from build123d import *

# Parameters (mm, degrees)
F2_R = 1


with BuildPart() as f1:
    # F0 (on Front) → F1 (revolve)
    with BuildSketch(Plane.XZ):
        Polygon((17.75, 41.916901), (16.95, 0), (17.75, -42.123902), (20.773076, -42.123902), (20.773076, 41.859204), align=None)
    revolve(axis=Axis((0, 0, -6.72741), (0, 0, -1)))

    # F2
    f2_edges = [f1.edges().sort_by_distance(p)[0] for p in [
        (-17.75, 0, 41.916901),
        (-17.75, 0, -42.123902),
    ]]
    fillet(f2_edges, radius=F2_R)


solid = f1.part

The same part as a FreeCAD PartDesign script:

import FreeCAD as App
import Part
import Sketcher

V = App.Vector


def edges_at(feature, points):
    """Names of the edges that pass closest to the given points."""
    edges = feature.Shape.Edges
    near = lambda p: min(range(len(edges)), key=lambda i: edges[i].distToShape(Part.Vertex(*p))[0])
    return sorted({f"Edge{near(p) + 1}" for p in points})


def add_polygon(sketch, points):
    """Adds a closed chain of lines whose ends are joined by coincident constraints."""
    first, n = sketch.GeometryCount, len(points)
    for a, b in zip(points, points[1:] + points[:1]):
        sketch.addGeometry(Part.LineSegment(App.Vector(*a, 0), App.Vector(*b, 0)), False)
    for i in range(n):
        sketch.addConstraint(Sketcher.Constraint("Coincident", first + i, 2, first + (i + 1) % n, 1))

doc = App.newDocument("Part")
body = doc.addObject("PartDesign::Body", "Body")

sketch1 = body.newObject("Sketcher::SketchObject", "Sketch")
sketch1.AttachmentSupport = (doc.getObject("XZ_Plane"), [""])
sketch1.MapMode = "FlatFace"
add_polygon(sketch1, [(17.8, 41.9), (16.9, 0), (17.8, -42.1), (20.8, -42.1), (20.8, 41.9)])
sketch1.addConstraint(Sketcher.Constraint("Horizontal", 2))
sketch1.addConstraint(Sketcher.Constraint("Vertical", 3))
sketch1.addConstraint(Sketcher.Constraint("PointOnObject", 0, 2, -1))
sketch1.addConstraint(Sketcher.Constraint("Perpendicular", 0, 4))
sketch1.addConstraint(Sketcher.Constraint("Vertical", 1, 2, 4, 2))
sketch1.addConstraint(Sketcher.Constraint("DistanceX", 0, 2, 1, 2, 0.8))
sketch1.addConstraint(Sketcher.Constraint("DistanceX", -1, 1, 0, 2, 16.95))
sketch1.addConstraint(Sketcher.Constraint("DistanceY", -1, 1, 4, 2, 41.916901))
sketch1.addConstraint(Sketcher.Constraint("DistanceX", 2, 1, 2, 2, 3.023076))
sketch1.addConstraint(Sketcher.Constraint("DistanceY", 3, 1, 3, 2, 83.983106))
revolution = body.newObject("PartDesign::Revolution", "Revolution")
revolution.Profile = sketch1
revolution.ReferenceAxis = (sketch1, ["V_Axis"])
revolution.Angle = 360
doc.recompute()

fillet = body.newObject("PartDesign::Fillet", "Fillet")
fillet.Base = (revolution, edges_at(revolution, [(-17.75, 0, 41.917), (-17.75, 0, -42.124)]))
fillet.Radius = 1

doc.recompute()
